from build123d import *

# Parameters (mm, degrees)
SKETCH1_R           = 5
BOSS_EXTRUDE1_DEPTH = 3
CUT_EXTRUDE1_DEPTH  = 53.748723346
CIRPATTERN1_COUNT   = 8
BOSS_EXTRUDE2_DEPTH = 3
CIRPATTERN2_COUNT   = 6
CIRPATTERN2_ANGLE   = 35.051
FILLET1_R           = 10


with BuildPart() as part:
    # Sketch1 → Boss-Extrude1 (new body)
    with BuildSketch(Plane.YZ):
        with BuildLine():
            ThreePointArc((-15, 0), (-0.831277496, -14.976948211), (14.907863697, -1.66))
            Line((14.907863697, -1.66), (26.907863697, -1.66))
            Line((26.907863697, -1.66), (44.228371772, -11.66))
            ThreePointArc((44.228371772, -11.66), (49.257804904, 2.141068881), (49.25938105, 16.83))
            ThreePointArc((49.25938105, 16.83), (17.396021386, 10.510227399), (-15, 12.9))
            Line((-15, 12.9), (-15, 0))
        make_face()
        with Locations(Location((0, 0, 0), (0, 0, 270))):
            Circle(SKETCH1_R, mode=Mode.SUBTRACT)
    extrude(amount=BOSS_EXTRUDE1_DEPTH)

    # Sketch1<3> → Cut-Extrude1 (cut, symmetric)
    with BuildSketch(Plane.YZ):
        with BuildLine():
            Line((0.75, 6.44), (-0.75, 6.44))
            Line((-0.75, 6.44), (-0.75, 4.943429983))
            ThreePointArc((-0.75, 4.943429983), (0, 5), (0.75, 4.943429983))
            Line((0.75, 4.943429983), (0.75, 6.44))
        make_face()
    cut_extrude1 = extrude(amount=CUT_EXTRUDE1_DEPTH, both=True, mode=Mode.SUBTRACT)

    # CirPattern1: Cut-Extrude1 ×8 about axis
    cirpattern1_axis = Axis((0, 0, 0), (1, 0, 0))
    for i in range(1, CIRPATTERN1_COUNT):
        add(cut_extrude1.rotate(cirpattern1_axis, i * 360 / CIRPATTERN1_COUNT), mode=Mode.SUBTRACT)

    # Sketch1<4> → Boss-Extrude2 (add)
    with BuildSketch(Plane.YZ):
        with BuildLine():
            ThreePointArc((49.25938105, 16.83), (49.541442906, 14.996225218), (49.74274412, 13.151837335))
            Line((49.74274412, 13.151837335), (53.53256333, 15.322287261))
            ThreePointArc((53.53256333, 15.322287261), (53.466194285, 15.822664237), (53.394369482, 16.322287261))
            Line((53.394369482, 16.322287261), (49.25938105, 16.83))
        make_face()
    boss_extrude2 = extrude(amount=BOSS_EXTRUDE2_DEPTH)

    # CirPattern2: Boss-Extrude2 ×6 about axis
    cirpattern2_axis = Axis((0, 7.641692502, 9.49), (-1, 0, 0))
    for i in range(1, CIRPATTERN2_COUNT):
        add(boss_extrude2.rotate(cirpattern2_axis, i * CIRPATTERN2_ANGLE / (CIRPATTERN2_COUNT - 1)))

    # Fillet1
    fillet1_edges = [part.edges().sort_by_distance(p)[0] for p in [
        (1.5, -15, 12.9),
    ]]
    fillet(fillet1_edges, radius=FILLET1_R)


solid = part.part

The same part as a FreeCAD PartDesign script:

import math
import FreeCAD as App
import Part
import Sketcher
Q = App.Units.Quantity


def edges_at(feature, points):
    """Names of the edges that pass closest to the given points."""
    edges = feature.Shape.Edges
    near = lambda p: min(range(len(edges)), key=lambda i: edges[i].distToShape(Part.Vertex(*p))[0])
    return sorted({f"Edge{near(p) + 1}" for p in points})

doc = App.newDocument("Part")
body = doc.addObject("PartDesign::Body", "Body")

sketch1 = doc.addObject("Sketcher::SketchObject", "Sketch")
body.addObject(sketch1)
sketch1.AttachmentSupport = (doc.YZ_Plane, [""])
sketch1.MapMode = "FlatFace"
sketch1.addGeometry(Part.ArcOfCircle(Part.Circle(App.Vector(0, 0, 0), App.Vector(0, 0, 1), 15), math.radians(180), math.radians(353.646253)), False)
sketch1.addGeometry(Part.LineSegment(App.Vector(14.907864, -1.66, 0), App.Vector(26.907864, -1.66, 0)), False)
sketch1.addGeometry(Part.LineSegment(App.Vector(26.907864, -1.66, 0), App.Vector(44.228372, -11.66, 0)), False)
sketch1.addGeometry(Part.ArcOfCircle(Part.Circle(App.Vector(7.641693, 9.49, 0), App.Vector(0, 0, 1), 42.26), math.radians(-30.031316), math.radians(10.002241)), False)
sketch1.addGeometry(Part.ArcOfCircle(Part.Circle(App.Vector(10.013931, 131.2147, 0), App.Vector(0, 0, 1), 120.93), math.radians(-101.937605), math.radians(-71.062879)), False)
sketch1.addGeometry(Part.LineSegment(App.Vector(-15, 12.9, 0), App.Vector(-15, 0, 0)), False)
sketch1.addGeometry(Part.Circle(App.Vector(0, 0, 0), App.Vector(0, 0, 1), 5), False)
sketch1.addConstraint(Sketcher.Constraint("Coincident", 0, 2, 1, 1))
sketch1.addConstraint(Sketcher.Constraint("Coincident", 1, 2, 2, 1))
sketch1.addConstraint(Sketcher.Constraint("Coincident", 2, 2, 3, 1))
sketch1.addConstraint(Sketcher.Constraint("Coincident", 3, 2, 4, 2))
sketch1.addConstraint(Sketcher.Constraint("Coincident", 4, 1, 5, 1))
sketch1.addConstraint(Sketcher.Constraint("Tangent", 5, 2, 0, 1))
sketch1.addConstraint(Sketcher.Constraint("Horizontal", 1))
sketch1.addConstraint(Sketcher.Constraint("Vertical", 5))
sketch1.addConstraint(Sketcher.Constraint("Coincident", 0, 3, -1, 1))
sketch1.addConstraint(Sketcher.Constraint("Coincident", 6, 3, -1, 1))
sketch1.addConstraint(Sketcher.Constraint("Diameter", 6, 10.0))
sketch1.addConstraint(Sketcher.Constraint("Radius", 0, 15.0))
sketch1.addConstraint(Sketcher.Constraint("DistanceX", 1, 1, 1, 2, 12.0))
sketch1.addConstraint(Sketcher.Constraint("Angle", 2, Q("-30 deg")))
sketch1.addConstraint(Sketcher.Constraint("Radius", 3, 42.26))
sketch1.addConstraint(Sketcher.Constraint("Radius", 4, 120.93))
sketch1.addConstraint(Sketcher.Constraint("Distance", 2, 20.0))
sketch1.addConstraint(Sketcher.Constraint("DistanceY", 5, 2, 5, 1, 12.9))
sketch1.addConstraint(Sketcher.Constraint("DistanceY", -1, 1, 3, 3, 9.49))
sketch1.addConstraint(Sketcher.Constraint("DistanceY", 0, 2, -1, 1, 1.66))
sketch1.addConstraint(Sketcher.Constraint("DistanceY", -1, 1, 3, 2, 16.83))
pad1 = doc.addObject("PartDesign::Pad", "Pad")
body.addObject(pad1)
pad1.Profile = sketch1
pad1.Length = 3

sketch2 = doc.addObject("Sketcher::SketchObject", "Sketch001")
body.addObject(sketch2)
sketch2.AttachmentSupport = (doc.YZ_Plane, [""])
sketch2.MapMode = "FlatFace"
sketch2.addGeometry(Part.LineSegment(App.Vector(0.75, 6.44, 0), App.Vector(-0.75, 6.44, 0)), False)
sketch2.addGeometry(Part.LineSegment(App.Vector(-0.75, 6.44, 0), App.Vector(-0.75, 4.94343, 0)), False)
sketch2.addGeometry(Part.ArcOfCircle(Part.Circle(App.Vector(0, 0, 0), App.Vector(0, 0, 1), 5), math.radians(81.373073), math.radians(98.626927)), False)
sketch2.addGeometry(Part.LineSegment(App.Vector(0.75, 4.94343, 0), App.Vector(0.75, 6.44, 0)), False)
sketch2.addConstraint(Sketcher.Constraint("Coincident", 0, 2, 1, 1))
sketch2.addConstraint(Sketcher.Constraint("Coincident", 1, 2, 2, 2))
sketch2.addConstraint(Sketcher.Constraint("Coincident", 2, 1, 3, 1))
sketch2.addConstraint(Sketcher.Constraint("Coincident", 3, 2, 0, 1))
sketch2.addConstraint(Sketcher.Constraint("Horizontal", 0))
sketch2.addConstraint(Sketcher.Constraint("Vertical", 1))
sketch2.addConstraint(Sketcher.Constraint("Vertical", 3))
sketch2.addConstraint(Sketcher.Constraint("Coincident", 2, 3, -1, 1))
sketch2.addConstraint(Sketcher.Constraint("Horizontal", 1, 2, 2, 1))
sketch2.addConstraint(Sketcher.Constraint("Radius", 2, 5.0))
sketch2.addConstraint(Sketcher.Constraint("DistanceX", 0, 2, 0, 1, 1.5))
sketch2.addConstraint(Sketcher.Constraint("DistanceY", -1, 1, 0, 2, 6.44))
pocket1 = doc.addObject("PartDesign::Pocket", "Pocket")
body.addObject(pocket1)
pocket1.Profile = sketch2
pocket1.Length = 107.497447
pocket1.Midplane = True
doc.recompute()

polarpattern = doc.addObject("PartDesign::PolarPattern", "PolarPattern")
body.addObject(polarpattern)
polarpattern.Originals = [pocket1]
polarpattern.Axis = (doc.X_Axis, [""])
polarpattern.Angle = 360
polarpattern.Occurrences = 8
body.Tip = polarpattern

sketch3 = doc.addObject("Sketcher::SketchObject", "Sketch002")
body.addObject(sketch3)
sketch3.AttachmentSupport = (doc.YZ_Plane, [""])
sketch3.MapMode = "FlatFace"
sketch3.addGeometry(Part.ArcOfCircle(Part.Circle(App.Vector(7.641693, 9.49, 0), App.Vector(0, 0, 1), 42.26), math.radians(4.970924), math.radians(10.002241)), False)
sketch3.addGeometry(Part.LineSegment(App.Vector(49.742744, 13.151837, 0), App.Vector(53.532563, 15.322287, 0)), False)
sketch3.addGeometry(Part.ArcOfCircle(Part.Circle(App.Vector(7.641683, 9.489999, 0), App.Vector(0, 0, 1), 46.260009), math.radians(7.242912), math.radians(8.493267)), False)
sketch3.addGeometry(Part.LineSegment(App.Vector(53.394369, 16.322287, 0), App.Vector(49.259381, 16.83, 0)), False)
sketch3.addConstraint(Sketcher.Constraint("Coincident", 0, 1, 1, 1))
sketch3.addConstraint(Sketcher.Constraint("Coincident", 1, 2, 2, 1))
sketch3.addConstraint(Sketcher.Constraint("Coincident", 2, 2, 3, 1))
sketch3.addConstraint(Sketcher.Constraint("Coincident", 3, 2, 0, 2))
sketch3.addConstraint(Sketcher.Constraint("Coincident", 2, 3, 0, 3))
sketch3.addConstraint(Sketcher.Constraint("Angle", 3, Q("173 deg")))
sketch3.addConstraint(Sketcher.Constraint("Radius", 0, 42.26))
sketch3.addConstraint(Sketcher.Constraint("Angle", 1, Q("29.8 deg")))
sketch3.addConstraint(Sketcher.Constraint("DistanceY", 1, 2, 2, 2, 1.0))
sketch3.addConstraint(Sketcher.Constraint("DistanceY", -1, 1, 0, 3, 9.49))
sketch3.addConstraint(Sketcher.Constraint("DistanceY", -1, 1, 3, 2, 16.83))
sketch3.addConstraint(Sketcher.Constraint("Radius", 2, 46.260009))
sketch3.addConstraint(Sketcher.Constraint("DistanceX", -1, 1, 2, 2, 53.394369))
pad2 = doc.addObject("PartDesign::Pad", "Pad001")
body.addObject(pad2)
pad2.Profile = sketch3
pad2.Length = 3
doc.recompute()

datumline = doc.addObject("PartDesign::Line", "DatumLine")
body.addObject(datumline)
datumline.Placement = App.Placement(App.Vector(0, 7.641693, 9.49), App.Rotation(App.Vector(0, 0, 1), App.Vector(-1, 0, 0)))
polarpattern2 = doc.addObject("PartDesign::PolarPattern", "PolarPattern001")
body.addObject(polarpattern2)
polarpattern2.Originals = [pad2]
polarpattern2.Axis = (datumline, [""])
polarpattern2.Angle = 35.051
polarpattern2.Occurrences = 6
body.Tip = polarpattern2
doc.recompute()

fillet = doc.addObject("PartDesign::Fillet", "Fillet")
body.addObject(fillet)
fillet.Base = (polarpattern2, edges_at(polarpattern2, [(1.5, -15, 12.9)]))
fillet.Radius = 10

doc.recompute()
